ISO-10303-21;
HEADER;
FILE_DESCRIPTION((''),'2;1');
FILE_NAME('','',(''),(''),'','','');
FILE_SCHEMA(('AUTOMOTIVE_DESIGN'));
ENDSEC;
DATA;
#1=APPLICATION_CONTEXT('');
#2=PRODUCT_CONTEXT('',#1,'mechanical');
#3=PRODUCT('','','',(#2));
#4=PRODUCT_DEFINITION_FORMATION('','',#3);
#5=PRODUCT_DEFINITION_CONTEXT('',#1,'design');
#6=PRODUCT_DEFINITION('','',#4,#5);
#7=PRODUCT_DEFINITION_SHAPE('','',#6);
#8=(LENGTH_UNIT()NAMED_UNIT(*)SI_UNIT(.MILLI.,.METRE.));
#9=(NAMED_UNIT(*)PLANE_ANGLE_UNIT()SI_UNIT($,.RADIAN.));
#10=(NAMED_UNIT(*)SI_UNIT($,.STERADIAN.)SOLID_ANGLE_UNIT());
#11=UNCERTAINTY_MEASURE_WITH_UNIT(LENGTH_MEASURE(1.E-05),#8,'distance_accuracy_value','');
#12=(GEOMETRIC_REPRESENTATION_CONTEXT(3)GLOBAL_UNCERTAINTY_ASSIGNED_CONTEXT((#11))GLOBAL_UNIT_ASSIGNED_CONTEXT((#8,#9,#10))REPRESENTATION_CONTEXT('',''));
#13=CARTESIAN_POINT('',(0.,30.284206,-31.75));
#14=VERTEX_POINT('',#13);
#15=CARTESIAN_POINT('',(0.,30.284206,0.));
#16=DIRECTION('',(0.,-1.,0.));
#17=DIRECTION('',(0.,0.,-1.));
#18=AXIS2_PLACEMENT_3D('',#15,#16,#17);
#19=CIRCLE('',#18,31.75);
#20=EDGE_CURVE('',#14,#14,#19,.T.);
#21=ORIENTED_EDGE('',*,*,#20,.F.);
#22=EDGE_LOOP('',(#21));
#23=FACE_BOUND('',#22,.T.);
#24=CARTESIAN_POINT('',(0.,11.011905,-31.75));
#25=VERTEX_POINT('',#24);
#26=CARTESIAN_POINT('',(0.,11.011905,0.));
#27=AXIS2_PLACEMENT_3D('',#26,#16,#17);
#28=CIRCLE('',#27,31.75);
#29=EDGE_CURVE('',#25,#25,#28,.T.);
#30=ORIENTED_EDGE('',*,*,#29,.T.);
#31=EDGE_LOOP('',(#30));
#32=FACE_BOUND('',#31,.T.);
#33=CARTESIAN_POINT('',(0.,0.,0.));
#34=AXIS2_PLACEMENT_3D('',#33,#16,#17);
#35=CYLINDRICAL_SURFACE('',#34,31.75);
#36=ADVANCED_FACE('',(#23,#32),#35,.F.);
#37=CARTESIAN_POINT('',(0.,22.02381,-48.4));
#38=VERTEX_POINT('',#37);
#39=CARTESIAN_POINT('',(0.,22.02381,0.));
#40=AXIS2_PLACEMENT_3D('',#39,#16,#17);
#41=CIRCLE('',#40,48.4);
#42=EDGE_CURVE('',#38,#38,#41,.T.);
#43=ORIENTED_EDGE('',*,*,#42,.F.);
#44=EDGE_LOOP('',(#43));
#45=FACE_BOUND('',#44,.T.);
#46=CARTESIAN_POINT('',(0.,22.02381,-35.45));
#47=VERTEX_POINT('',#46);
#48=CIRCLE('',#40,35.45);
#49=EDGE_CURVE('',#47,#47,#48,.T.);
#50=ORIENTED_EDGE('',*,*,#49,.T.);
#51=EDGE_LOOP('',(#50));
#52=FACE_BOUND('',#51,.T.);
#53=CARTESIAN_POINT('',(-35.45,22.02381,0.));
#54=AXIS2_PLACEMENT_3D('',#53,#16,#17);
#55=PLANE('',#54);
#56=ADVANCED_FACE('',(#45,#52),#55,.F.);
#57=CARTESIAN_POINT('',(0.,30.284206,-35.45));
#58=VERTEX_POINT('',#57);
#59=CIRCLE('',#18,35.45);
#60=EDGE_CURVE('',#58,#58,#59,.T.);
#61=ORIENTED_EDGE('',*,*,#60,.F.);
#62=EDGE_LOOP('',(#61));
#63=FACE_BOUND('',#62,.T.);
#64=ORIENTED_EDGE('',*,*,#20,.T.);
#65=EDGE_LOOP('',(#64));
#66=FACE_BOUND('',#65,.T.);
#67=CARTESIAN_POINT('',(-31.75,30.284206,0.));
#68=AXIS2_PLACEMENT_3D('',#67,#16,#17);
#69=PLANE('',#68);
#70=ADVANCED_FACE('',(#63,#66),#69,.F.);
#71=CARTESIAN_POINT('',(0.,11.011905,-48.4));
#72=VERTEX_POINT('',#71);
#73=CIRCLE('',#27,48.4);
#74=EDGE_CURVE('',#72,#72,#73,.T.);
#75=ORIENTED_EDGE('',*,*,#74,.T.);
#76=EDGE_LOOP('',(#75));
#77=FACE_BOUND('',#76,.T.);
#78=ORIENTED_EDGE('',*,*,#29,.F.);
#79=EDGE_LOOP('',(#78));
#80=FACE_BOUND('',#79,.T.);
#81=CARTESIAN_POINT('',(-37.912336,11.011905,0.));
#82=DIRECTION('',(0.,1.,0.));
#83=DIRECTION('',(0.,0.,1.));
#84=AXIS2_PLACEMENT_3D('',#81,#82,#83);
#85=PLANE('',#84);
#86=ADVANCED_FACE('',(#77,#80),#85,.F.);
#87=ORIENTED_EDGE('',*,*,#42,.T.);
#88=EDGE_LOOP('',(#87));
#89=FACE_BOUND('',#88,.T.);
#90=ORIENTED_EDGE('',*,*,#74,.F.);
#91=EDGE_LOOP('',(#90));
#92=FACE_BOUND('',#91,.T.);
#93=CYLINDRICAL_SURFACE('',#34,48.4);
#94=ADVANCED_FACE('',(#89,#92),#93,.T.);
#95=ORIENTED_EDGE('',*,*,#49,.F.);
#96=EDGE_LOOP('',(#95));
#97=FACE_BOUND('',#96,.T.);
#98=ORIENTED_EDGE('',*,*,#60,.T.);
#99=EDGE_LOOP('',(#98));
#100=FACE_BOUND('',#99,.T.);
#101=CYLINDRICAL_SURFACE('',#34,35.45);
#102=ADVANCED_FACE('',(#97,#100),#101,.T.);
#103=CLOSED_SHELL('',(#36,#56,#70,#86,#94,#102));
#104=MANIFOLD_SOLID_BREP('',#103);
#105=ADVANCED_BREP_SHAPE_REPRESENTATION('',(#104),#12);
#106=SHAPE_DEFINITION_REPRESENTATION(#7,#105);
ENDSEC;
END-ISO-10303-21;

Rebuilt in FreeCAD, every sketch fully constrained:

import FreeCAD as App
import Part
import Sketcher

V = App.Vector


def add_polygon(sketch, points):
    """Adds a closed chain of lines whose ends are joined by coincident constraints."""
    first, n = sketch.GeometryCount, len(points)
    for a, b in zip(points, points[1:] + points[:1]):
        sketch.addGeometry(Part.LineSegment(App.Vector(*a, 0), App.Vector(*b, 0)), False)
    for i in range(n):
        sketch.addConstraint(Sketcher.Constraint("Coincident", first + i, 2, first + (i + 1) % n, 1))

doc = App.newDocument("Part")
body = doc.addObject("PartDesign::Body", "Body")

# Sketch on XY plane
sketch1 = body.newObject("Sketcher::SketchObject", "Sketch")
sketch1.AttachmentSupport = (doc.getObject("XY_Plane"), [""])
sketch1.MapMode = "FlatFace"
add_polygon(sketch1, [(-31.8, 11), (-31.8, 30.3), (-35.5, 30.3), (-35.5, 22), (-48.4, 22), (-48.4, 11)])  # lines 0-5
sketch1.addConstraint(Sketcher.Constraint("Vertical", 0))
sketch1.addConstraint(Sketcher.Constraint("Horizontal", 1))
sketch1.addConstraint(Sketcher.Constraint("Vertical", 2))
sketch1.addConstraint(Sketcher.Constraint("Horizontal", 3))
sketch1.addConstraint(Sketcher.Constraint("Vertical", 4))
sketch1.addConstraint(Sketcher.Constraint("Horizontal", 5))
sketch1.addConstraint(Sketcher.Constraint("DistanceX", 1, 2, 1, 1, 3.7))
sketch1.addConstraint(Sketcher.Constraint("DistanceX", 3, 2, 3, 1, 12.95))
sketch1.addConstraint(Sketcher.Constraint("DistanceX", 3, 2, -1, 1, 48.4))
sketch1.addConstraint(Sketcher.Constraint("DistanceY", 0, 1, 0, 2, 19.272302))
sketch1.addConstraint(Sketcher.Constraint("DistanceY", 2, 2, 2, 1, 8.260397))
sketch1.addConstraint(Sketcher.Constraint("DistanceY", -1, 1, 2, 2, 22.02381))
revolution = body.newObject("PartDesign::Revolution", "Revolution")
revolution.Profile = sketch1
revolution.ReferenceAxis = (sketch1, ["V_Axis"])
revolution.Angle = 360

doc.recompute()
